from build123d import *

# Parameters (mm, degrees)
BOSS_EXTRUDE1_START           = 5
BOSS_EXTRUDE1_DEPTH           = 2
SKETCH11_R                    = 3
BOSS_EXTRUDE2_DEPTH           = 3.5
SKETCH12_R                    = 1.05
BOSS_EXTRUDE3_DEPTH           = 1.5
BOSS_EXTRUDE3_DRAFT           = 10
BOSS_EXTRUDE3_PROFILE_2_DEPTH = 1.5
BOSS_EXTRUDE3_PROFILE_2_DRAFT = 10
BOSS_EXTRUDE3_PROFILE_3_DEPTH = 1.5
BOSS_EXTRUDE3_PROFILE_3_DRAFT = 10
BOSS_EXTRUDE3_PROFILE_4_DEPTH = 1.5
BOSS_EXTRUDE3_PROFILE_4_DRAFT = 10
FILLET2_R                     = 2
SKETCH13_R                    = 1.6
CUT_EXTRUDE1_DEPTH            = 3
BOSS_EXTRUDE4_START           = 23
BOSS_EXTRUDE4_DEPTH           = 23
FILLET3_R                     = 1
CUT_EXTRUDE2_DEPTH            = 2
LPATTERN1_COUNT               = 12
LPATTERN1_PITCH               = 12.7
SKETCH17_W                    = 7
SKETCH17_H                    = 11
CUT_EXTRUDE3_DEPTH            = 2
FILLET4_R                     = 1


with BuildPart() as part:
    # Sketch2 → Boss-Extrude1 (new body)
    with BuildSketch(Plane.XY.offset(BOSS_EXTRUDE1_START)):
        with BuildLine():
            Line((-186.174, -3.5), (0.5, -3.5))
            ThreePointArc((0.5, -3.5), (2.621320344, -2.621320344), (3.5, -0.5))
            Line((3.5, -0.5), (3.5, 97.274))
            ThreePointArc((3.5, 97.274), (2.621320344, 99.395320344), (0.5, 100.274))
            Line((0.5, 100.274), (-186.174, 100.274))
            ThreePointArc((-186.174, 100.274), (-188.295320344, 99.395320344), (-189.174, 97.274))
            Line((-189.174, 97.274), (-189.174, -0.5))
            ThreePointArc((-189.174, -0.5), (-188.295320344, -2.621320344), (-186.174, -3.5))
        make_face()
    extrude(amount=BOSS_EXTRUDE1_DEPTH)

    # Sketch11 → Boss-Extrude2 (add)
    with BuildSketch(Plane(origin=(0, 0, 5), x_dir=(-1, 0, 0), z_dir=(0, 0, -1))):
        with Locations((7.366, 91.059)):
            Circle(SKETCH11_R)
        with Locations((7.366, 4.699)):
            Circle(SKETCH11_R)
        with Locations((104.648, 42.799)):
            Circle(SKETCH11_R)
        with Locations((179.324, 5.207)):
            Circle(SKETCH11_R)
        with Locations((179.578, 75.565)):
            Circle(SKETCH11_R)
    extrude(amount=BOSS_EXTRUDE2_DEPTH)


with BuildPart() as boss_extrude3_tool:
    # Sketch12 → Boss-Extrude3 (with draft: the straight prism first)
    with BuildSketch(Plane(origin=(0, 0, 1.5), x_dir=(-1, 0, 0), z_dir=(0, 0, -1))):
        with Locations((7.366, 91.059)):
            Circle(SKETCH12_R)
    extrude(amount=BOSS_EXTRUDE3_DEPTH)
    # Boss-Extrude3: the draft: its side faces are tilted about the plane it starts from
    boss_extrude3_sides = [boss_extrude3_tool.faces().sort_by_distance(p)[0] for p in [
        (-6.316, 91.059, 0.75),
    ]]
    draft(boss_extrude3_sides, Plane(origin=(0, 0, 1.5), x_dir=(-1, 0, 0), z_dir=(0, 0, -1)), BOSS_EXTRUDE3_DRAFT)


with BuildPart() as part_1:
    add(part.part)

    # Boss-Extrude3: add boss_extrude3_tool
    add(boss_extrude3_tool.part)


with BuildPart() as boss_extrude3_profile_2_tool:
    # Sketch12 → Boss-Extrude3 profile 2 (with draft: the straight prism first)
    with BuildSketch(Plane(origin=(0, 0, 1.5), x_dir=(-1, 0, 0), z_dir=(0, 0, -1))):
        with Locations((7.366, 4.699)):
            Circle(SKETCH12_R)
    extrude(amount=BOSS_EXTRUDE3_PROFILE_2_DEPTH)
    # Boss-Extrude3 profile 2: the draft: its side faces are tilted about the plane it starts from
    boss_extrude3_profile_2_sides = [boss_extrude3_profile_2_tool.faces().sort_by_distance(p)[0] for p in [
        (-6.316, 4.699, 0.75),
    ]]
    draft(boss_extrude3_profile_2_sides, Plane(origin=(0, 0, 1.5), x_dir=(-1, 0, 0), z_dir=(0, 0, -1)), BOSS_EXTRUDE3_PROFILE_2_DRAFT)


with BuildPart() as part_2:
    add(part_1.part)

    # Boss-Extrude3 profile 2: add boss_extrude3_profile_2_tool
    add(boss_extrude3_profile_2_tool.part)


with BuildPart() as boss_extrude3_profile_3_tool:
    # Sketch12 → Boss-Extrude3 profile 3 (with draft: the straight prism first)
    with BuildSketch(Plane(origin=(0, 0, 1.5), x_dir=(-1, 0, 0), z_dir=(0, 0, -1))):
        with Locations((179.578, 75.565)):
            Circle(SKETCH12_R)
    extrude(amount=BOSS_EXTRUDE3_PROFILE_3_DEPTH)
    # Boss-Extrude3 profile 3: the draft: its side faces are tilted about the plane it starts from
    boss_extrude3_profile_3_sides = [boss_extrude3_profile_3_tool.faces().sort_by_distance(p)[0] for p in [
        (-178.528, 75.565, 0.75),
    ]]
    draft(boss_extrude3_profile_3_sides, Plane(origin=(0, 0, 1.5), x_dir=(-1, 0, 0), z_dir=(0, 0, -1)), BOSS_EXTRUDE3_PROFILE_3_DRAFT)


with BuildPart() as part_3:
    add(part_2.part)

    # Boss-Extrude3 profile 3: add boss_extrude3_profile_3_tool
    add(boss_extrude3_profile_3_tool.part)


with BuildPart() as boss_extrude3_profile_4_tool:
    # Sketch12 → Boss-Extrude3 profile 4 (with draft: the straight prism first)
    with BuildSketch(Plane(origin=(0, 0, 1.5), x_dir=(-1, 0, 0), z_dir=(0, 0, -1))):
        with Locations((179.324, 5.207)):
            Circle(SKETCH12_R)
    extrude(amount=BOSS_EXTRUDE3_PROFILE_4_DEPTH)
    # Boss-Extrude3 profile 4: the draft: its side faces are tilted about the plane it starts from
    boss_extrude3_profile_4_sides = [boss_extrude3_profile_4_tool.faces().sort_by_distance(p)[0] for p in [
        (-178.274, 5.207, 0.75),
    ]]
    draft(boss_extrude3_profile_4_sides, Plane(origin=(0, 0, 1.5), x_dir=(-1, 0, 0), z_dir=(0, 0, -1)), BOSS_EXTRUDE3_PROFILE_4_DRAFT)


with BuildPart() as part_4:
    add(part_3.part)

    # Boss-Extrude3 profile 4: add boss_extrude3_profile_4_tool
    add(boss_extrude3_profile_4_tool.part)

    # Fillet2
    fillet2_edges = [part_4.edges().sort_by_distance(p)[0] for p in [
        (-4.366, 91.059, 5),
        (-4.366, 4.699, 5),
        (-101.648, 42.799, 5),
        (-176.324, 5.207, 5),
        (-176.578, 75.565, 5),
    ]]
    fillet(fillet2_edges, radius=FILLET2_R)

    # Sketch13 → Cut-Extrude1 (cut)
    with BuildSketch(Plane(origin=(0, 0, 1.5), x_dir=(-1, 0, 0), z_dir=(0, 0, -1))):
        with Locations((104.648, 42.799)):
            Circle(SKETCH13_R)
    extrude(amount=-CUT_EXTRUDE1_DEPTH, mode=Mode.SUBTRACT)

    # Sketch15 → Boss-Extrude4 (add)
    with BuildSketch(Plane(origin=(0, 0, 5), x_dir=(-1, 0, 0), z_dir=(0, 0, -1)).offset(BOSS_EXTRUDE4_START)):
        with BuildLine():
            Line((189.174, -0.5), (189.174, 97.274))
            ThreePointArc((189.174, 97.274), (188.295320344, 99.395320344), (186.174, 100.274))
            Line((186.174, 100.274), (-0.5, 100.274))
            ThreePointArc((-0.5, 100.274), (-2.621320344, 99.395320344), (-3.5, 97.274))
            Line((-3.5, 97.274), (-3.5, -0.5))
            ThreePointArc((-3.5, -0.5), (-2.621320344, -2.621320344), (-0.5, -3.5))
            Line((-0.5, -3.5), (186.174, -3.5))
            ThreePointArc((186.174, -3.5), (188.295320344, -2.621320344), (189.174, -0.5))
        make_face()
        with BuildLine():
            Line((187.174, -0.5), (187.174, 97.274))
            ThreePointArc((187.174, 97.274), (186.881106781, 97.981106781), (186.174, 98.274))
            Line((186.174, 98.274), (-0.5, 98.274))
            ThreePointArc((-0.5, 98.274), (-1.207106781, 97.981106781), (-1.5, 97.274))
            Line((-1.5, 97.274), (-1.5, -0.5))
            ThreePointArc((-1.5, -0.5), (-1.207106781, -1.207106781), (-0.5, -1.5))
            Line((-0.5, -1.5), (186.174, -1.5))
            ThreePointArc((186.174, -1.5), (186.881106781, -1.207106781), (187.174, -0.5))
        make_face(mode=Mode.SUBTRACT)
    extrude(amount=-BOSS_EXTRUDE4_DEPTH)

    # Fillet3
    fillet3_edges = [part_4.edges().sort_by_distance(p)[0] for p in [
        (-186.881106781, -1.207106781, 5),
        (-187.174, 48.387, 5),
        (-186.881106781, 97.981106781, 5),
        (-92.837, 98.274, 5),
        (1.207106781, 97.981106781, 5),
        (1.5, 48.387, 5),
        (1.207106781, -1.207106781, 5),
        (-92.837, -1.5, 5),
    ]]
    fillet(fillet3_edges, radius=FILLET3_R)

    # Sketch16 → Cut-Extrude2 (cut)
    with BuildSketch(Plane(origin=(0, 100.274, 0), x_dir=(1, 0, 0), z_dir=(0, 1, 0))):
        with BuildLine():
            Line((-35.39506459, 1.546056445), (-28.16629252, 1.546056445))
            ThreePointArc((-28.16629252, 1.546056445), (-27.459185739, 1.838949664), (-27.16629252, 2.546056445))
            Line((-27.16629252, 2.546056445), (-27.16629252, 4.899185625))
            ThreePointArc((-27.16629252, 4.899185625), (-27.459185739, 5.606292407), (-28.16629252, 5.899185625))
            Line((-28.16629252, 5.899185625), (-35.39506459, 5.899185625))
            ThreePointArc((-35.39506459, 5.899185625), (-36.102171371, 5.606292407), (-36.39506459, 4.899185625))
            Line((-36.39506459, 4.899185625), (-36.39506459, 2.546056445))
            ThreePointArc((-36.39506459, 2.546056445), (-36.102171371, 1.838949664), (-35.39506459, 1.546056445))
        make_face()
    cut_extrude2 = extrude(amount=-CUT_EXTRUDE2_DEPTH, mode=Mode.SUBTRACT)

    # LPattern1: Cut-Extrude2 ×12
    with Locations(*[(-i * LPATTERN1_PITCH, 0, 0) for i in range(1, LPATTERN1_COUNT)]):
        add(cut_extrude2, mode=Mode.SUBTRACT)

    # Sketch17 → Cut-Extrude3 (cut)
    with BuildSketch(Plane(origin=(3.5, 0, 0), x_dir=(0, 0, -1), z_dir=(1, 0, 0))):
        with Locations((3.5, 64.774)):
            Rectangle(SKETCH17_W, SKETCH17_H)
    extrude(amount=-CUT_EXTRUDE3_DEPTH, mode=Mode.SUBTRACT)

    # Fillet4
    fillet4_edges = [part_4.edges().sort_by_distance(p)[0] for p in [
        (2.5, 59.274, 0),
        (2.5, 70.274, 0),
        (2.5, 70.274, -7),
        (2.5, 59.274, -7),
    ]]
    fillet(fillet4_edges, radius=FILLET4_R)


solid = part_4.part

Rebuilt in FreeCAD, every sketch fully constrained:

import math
import FreeCAD as App
import Part
import Sketcher


def edges_at(feature, points):
    """Names of the edges that pass closest to the given points."""
    edges = feature.Shape.Edges
    near = lambda p: min(range(len(edges)), key=lambda i: edges[i].distToShape(Part.Vertex(*p))[0])
    return sorted({f"Edge{near(p) + 1}" for p in points})


def faces_at(feature, points):
    """Names of the faces that lie closest to the given points."""
    faces = feature.Shape.Faces
    near = lambda p: min(range(len(faces)), key=lambda i: faces[i].distToShape(Part.Vertex(*p))[0])
    return sorted({f"Face{near(p) + 1}" for p in points})

doc = App.newDocument("Part")
body = doc.addObject("PartDesign::Body", "Body")

# Sketch on XY plane
sketch1 = body.newObject("Sketcher::SketchObject", "Sketch")
sketch1.AttachmentSupport = (doc.getObject("XY_Plane"), [""])
sketch1.MapMode = "FlatFace"
sketch1.AttachmentOffset = App.Placement(App.Vector(0, 0, 5), App.Rotation())
sketch1.addGeometry(Part.LineSegment(App.Vector(-186.2, -3.5, 0), App.Vector(0.5, -3.5, 0)), False)
sketch1.addGeometry(Part.ArcOfCircle(Part.Circle(App.Vector(0.5, -0.5, 0), App.Vector(0, 0, 1), 3), math.radians(-90), math.radians(0)), False)
sketch1.addGeometry(Part.LineSegment(App.Vector(3.5, -0.5, 0), App.Vector(3.5, 97.3, 0)), False)
sketch1.addGeometry(Part.ArcOfCircle(Part.Circle(App.Vector(0.5, 97.3, 0), App.Vector(0, 0, 1), 3), math.radians(0), math.radians(90)), False)
sketch1.addGeometry(Part.LineSegment(App.Vector(0.5, 100.3, 0), App.Vector(-186.2, 100.3, 0)), False)
sketch1.addGeometry(Part.ArcOfCircle(Part.Circle(App.Vector(-186.2, 97.3, 0), App.Vector(0, 0, 1), 3), math.radians(90), math.radians(180)), False)
sketch1.addGeometry(Part.LineSegment(App.Vector(-189.2, 97.3, 0), App.Vector(-189.2, -0.5, 0)), False)
sketch1.addGeometry(Part.ArcOfCircle(Part.Circle(App.Vector(-186.2, -0.5, 0), App.Vector(0, 0, 1), 3), math.radians(180), math.radians(270)), False)
sketch1.addConstraint(Sketcher.Constraint("Tangent", 0, 2, 1, 1))
sketch1.addConstraint(Sketcher.Constraint("Tangent", 1, 2, 2, 1))
sketch1.addConstraint(Sketcher.Constraint("Tangent", 2, 2, 3, 1))
sketch1.addConstraint(Sketcher.Constraint("Tangent", 3, 2, 4, 1))
sketch1.addConstraint(Sketcher.Constraint("Tangent", 4, 2, 5, 1))
sketch1.addConstraint(Sketcher.Constraint("Tangent", 5, 2, 6, 1))
sketch1.addConstraint(Sketcher.Constraint("Tangent", 6, 2, 7, 1))
sketch1.addConstraint(Sketcher.Constraint("Tangent", 7, 2, 0, 1))
sketch1.addConstraint(Sketcher.Constraint("Horizontal", 0))
sketch1.addConstraint(Sketcher.Constraint("Vertical", 2))
sketch1.addConstraint(Sketcher.Constraint("Horizontal", 4))
sketch1.addConstraint(Sketcher.Constraint("Vertical", 6))
sketch1.addConstraint(Sketcher.Constraint("Equal", 1, 3))
sketch1.addConstraint(Sketcher.Constraint("Equal", 3, 5))
sketch1.addConstraint(Sketcher.Constraint("Equal", 5, 7))
sketch1.addConstraint(Sketcher.Constraint("Radius", 1, 3.0))
sketch1.addConstraint(Sketcher.Constraint("DistanceX", -1, 1, 1, 3, 0.5))
sketch1.addConstraint(Sketcher.Constraint("DistanceY", 1, 3, -1, 1, 0.5))
sketch1.addConstraint(Sketcher.Constraint("DistanceX", 0, 1, 0, 2, 186.674))
sketch1.addConstraint(Sketcher.Constraint("DistanceY", 2, 1, 2, 2, 97.774))
pad1 = body.newObject("PartDesign::Pad", "Pad")
pad1.Profile = sketch1
pad1.Length = 2

# Sketch on XY plane
sketch2 = body.newObject("Sketcher::SketchObject", "Sketch001")
sketch2.AttachmentSupport = (doc.getObject("XY_Plane"), [""])
sketch2.MapMode = "FlatFace"
sketch2.AttachmentOffset = App.Placement(App.Vector(0, 0, 5), App.Rotation())
sketch2.addGeometry(Part.Circle(App.Vector(-7.4, 91.1, 0), App.Vector(0, 0, 1), 3), False)
sketch2.addGeometry(Part.Circle(App.Vector(-7.4, 4.7, 0), App.Vector(0, 0, 1), 3), False)
sketch2.addGeometry(Part.Circle(App.Vector(-104.6, 42.8, 0), App.Vector(0, 0, 1), 3), False)
sketch2.addGeometry(Part.Circle(App.Vector(-179.3, 5.2, 0), App.Vector(0, 0, 1), 3), False)
sketch2.addGeometry(Part.Circle(App.Vector(-179.6, 75.6, 0), App.Vector(0, 0, 1), 3), False)
sketch2.addConstraint(Sketcher.Constraint("Equal", 0, 1))
sketch2.addConstraint(Sketcher.Constraint("Equal", 1, 2))
sketch2.addConstraint(Sketcher.Constraint("Equal", 2, 3))
sketch2.addConstraint(Sketcher.Constraint("Equal", 3, 4))
sketch2.addConstraint(Sketcher.Constraint("Vertical", 0, 3, 1, 3))
sketch2.addConstraint(Sketcher.Constraint("Diameter", 0, 6.0))
sketch2.addConstraint(Sketcher.Constraint("DistanceY", 1, 3, 2, 3, 38.1))
sketch2.addConstraint(Sketcher.Constraint("DistanceY", 1, 3, 0, 3, 86.36))
sketch2.addConstraint(Sketcher.Constraint("DistanceX", 4, 3, 2, 3, 74.93))
sketch2.addConstraint(Sketcher.Constraint("DistanceX", 0, 3, -1, 1, 7.366))
sketch2.addConstraint(Sketcher.Constraint("DistanceY", -1, 1, 0, 3, 91.059))
sketch2.addConstraint(Sketcher.Constraint("DistanceX", 2, 3, -1, 1, 104.648))
sketch2.addConstraint(Sketcher.Constraint("DistanceX", 3, 3, -1, 1, 179.324))
sketch2.addConstraint(Sketcher.Constraint("DistanceY", -1, 1, 3, 3, 5.207))
sketch2.addConstraint(Sketcher.Constraint("DistanceY", -1, 1, 4, 3, 75.565))
pad2 = body.newObject("PartDesign::Pad", "Pad001")
pad2.Profile = sketch2
pad2.Length = 3.5
pad2.Reversed = True
body2 = doc.addObject("PartDesign::Body", "Body001")

# Sketch on XY plane
sketch3 = body2.newObject("Sketcher::SketchObject", "Sketch002")
sketch3.AttachmentSupport = (doc.getObject("XY_Plane001"), [""])
sketch3.MapMode = "FlatFace"
sketch3.AttachmentOffset = App.Placement(App.Vector(0, 0, 1.5), App.Rotation())
sketch3.addGeometry(Part.Circle(App.Vector(-7.4, 91.1, 0), App.Vector(0, 0, 1), 1.1), False)
sketch3.addConstraint(Sketcher.Constraint("Diameter", 0, 2.1))
sketch3.addConstraint(Sketcher.Constraint("DistanceX", 0, 3, -1, 1, 7.366))
sketch3.addConstraint(Sketcher.Constraint("DistanceY", -1, 1, 0, 3, 91.059))
pad3 = body2.newObject("PartDesign::Pad", "Pad002")
pad3.Profile = sketch3
pad3.Length = 1.5
pad3.Reversed = True
doc.recompute()

datumplane = body2.newObject("PartDesign::Plane", "DatumPlane")
datumplane.AttachmentSupport = (doc.getObject("XY_Plane001"), [""])
datumplane.MapMode = "FlatFace"
datumplane.AttachmentOffset = App.Placement(App.Vector(0, 0, 1.5), App.Rotation())
draft = body2.newObject("PartDesign::Draft", "Draft")
draft.Base = (pad3, faces_at(pad3, [(-6.316, 91.059, 0.75)]))
draft.NeutralPlane = (datumplane, [""])
draft.Angle = 10
draft.Reversed = True
doc.recompute()

boolean = body.newObject("PartDesign::Boolean", "Boolean")
boolean.Type = "Fuse"
boolean.addObjects([body2])
body3 = doc.addObject("PartDesign::Body", "Body002")

# Sketch on XY plane
sketch4 = body3.newObject("Sketcher::SketchObject", "Sketch003")
sketch4.AttachmentSupport = (doc.getObject("XY_Plane002"), [""])
sketch4.MapMode = "FlatFace"
sketch4.AttachmentOffset = App.Placement(App.Vector(0, 0, 1.5), App.Rotation())
sketch4.addGeometry(Part.Circle(App.Vector(-7.4, 4.7, 0), App.Vector(0, 0, 1), 1.1), False)
sketch4.addConstraint(Sketcher.Constraint("Diameter", 0, 2.1))
sketch4.addConstraint(Sketcher.Constraint("DistanceX", 0, 3, -1, 1, 7.366))
sketch4.addConstraint(Sketcher.Constraint("DistanceY", -1, 1, 0, 3, 4.699))
pad4 = body3.newObject("PartDesign::Pad", "Pad003")
pad4.Profile = sketch4
pad4.Length = 1.5
pad4.Reversed = True
doc.recompute()

datumplane2 = body3.newObject("PartDesign::Plane", "DatumPlane001")
datumplane2.AttachmentSupport = (doc.getObject("XY_Plane002"), [""])
datumplane2.MapMode = "FlatFace"
datumplane2.AttachmentOffset = App.Placement(App.Vector(0, 0, 1.5), App.Rotation())
draft2 = body3.newObject("PartDesign::Draft", "Draft001")
draft2.Base = (pad4, faces_at(pad4, [(-6.316, 4.699, 0.75)]))
draft2.NeutralPlane = (datumplane2, [""])
draft2.Angle = 10
draft2.Reversed = True
doc.recompute()

boolean2 = body.newObject("PartDesign::Boolean", "Boolean001")
boolean2.Type = "Fuse"
boolean2.addObjects([body3])
body4 = doc.addObject("PartDesign::Body", "Body003")

# Sketch on XY plane
sketch5 = body4.newObject("Sketcher::SketchObject", "Sketch004")
sketch5.AttachmentSupport = (doc.getObject("XY_Plane003"), [""])
sketch5.MapMode = "FlatFace"
sketch5.AttachmentOffset = App.Placement(App.Vector(0, 0, 1.5), App.Rotation())
sketch5.addGeometry(Part.Circle(App.Vector(-179.6, 75.6, 0), App.Vector(0, 0, 1), 1.1), False)
sketch5.addConstraint(Sketcher.Constraint("Diameter", 0, 2.1))
sketch5.addConstraint(Sketcher.Constraint("DistanceX", 0, 3, -1, 1, 179.578))
sketch5.addConstraint(Sketcher.Constraint("DistanceY", -1, 1, 0, 3, 75.565))
pad5 = body4.newObject("PartDesign::Pad", "Pad004")
pad5.Profile = sketch5
pad5.Length = 1.5
pad5.Reversed = True
doc.recompute()

datumplane3 = body4.newObject("PartDesign::Plane", "DatumPlane002")
datumplane3.AttachmentSupport = (doc.getObject("XY_Plane003"), [""])
datumplane3.MapMode = "FlatFace"
datumplane3.AttachmentOffset = App.Placement(App.Vector(0, 0, 1.5), App.Rotation())
draft3 = body4.newObject("PartDesign::Draft", "Draft002")
draft3.Base = (pad5, faces_at(pad5, [(-178.528, 75.565, 0.75)]))
draft3.NeutralPlane = (datumplane3, [""])
draft3.Angle = 10
draft3.Reversed = True
doc.recompute()

boolean3 = body.newObject("PartDesign::Boolean", "Boolean002")
boolean3.Type = "Fuse"
boolean3.addObjects([body4])
body5 = doc.addObject("PartDesign::Body", "Body004")

# Sketch on XY plane
sketch6 = body5.newObject("Sketcher::SketchObject", "Sketch005")
sketch6.AttachmentSupport = (doc.getObject("XY_Plane004"), [""])
sketch6.MapMode = "FlatFace"
sketch6.AttachmentOffset = App.Placement(App.Vector(0, 0, 1.5), App.Rotation())
sketch6.addGeometry(Part.Circle(App.Vector(-179.3, 5.2, 0), App.Vector(0, 0, 1), 1.1), False)
sketch6.addConstraint(Sketcher.Constraint("Diameter", 0, 2.1))
sketch6.addConstraint(Sketcher.Constraint("DistanceX", 0, 3, -1, 1, 179.324))
sketch6.addConstraint(Sketcher.Constraint("DistanceY", -1, 1, 0, 3, 5.207))
pad6 = body5.newObject("PartDesign::Pad", "Pad005")
pad6.Profile = sketch6
pad6.Length = 1.5
pad6.Reversed = True
doc.recompute()

datumplane4 = body5.newObject("PartDesign::Plane", "DatumPlane003")
datumplane4.AttachmentSupport = (doc.getObject("XY_Plane004"), [""])
datumplane4.MapMode = "FlatFace"
datumplane4.AttachmentOffset = App.Placement(App.Vector(0, 0, 1.5), App.Rotation())
draft4 = body5.newObject("PartDesign::Draft", "Draft003")
draft4.Base = (pad6, faces_at(pad6, [(-178.274, 5.207, 0.75)]))
draft4.NeutralPlane = (datumplane4, [""])
draft4.Angle = 10
draft4.Reversed = True
doc.recompute()

boolean4 = body.newObject("PartDesign::Boolean", "Boolean003")
boolean4.Type = "Fuse"
boolean4.addObjects([body5])
doc.recompute()

fillet = body.newObject("PartDesign::Fillet", "Fillet")
fillet.Base = (boolean4, edges_at(boolean4, [
    (-4.366, 91.059, 5),
    (-4.366, 4.699, 5),
    (-101.648, 42.799, 5),
    (-176.324, 5.207, 5),
    (-176.578, 75.565, 5),
]))
fillet.Radius = 2

# Sketch on XY plane
sketch7 = body.newObject("Sketcher::SketchObject", "Sketch006")
sketch7.AttachmentSupport = (doc.getObject("XY_Plane"), [""])
sketch7.MapMode = "FlatFace"
sketch7.AttachmentOffset = App.Placement(App.Vector(0, 0, 1.5), App.Rotation())
sketch7.addGeometry(Part.Circle(App.Vector(-104.6, 42.8, 0), App.Vector(0, 0, 1), 1.6), False)
sketch7.addConstraint(Sketcher.Constraint("Diameter", 0, 3.2))
sketch7.addConstraint(Sketcher.Constraint("DistanceX", 0, 3, -1, 1, 104.648))
sketch7.addConstraint(Sketcher.Constraint("DistanceY", -1, 1, 0, 3, 42.799))
pocket1 = body.newObject("PartDesign::Pocket", "Pocket")
pocket1.Profile = sketch7
pocket1.Length = 3
pocket1.Reversed = True

# Sketch on XY plane
sketch8 = body.newObject("Sketcher::SketchObject", "Sketch007")
sketch8.AttachmentSupport = (doc.getObject("XY_Plane"), [""])
sketch8.MapMode = "FlatFace"
sketch8.AttachmentOffset = App.Placement(App.Vector(0, 0, -18), App.Rotation())
sketch8.addGeometry(Part.LineSegment(App.Vector(-189.2, -0.5, 0), App.Vector(-189.2, 97.3, 0)), False)
sketch8.addGeometry(Part.ArcOfCircle(Part.Circle(App.Vector(-186.2, 97.3, 0), App.Vector(0, 0, 1), 3), math.radians(90), math.radians(180)), False)
sketch8.addGeometry(Part.LineSegment(App.Vector(-186.2, 100.3, 0), App.Vector(0.5, 100.3, 0)), False)
sketch8.addGeometry(Part.ArcOfCircle(Part.Circle(App.Vector(0.5, 97.3, 0), App.Vector(0, 0, 1), 3), math.radians(0), math.radians(90)), False)
sketch8.addGeometry(Part.LineSegment(App.Vector(3.5, 97.3, 0), App.Vector(3.5, -0.5, 0)), False)
sketch8.addGeometry(Part.ArcOfCircle(Part.Circle(App.Vector(0.5, -0.5, 0), App.Vector(0, 0, 1), 3), math.radians(-90), math.radians(0)), False)
sketch8.addGeometry(Part.LineSegment(App.Vector(0.5, -3.5, 0), App.Vector(-186.2, -3.5, 0)), False)
sketch8.addGeometry(Part.ArcOfCircle(Part.Circle(App.Vector(-186.2, -0.5, 0), App.Vector(0, 0, 1), 3), math.radians(180), math.radians(270)), False)
sketch8.addGeometry(Part.LineSegment(App.Vector(-187.2, 97.3, 0), App.Vector(-187.2, -0.5, 0)), False)
sketch8.addGeometry(Part.ArcOfCircle(Part.Circle(App.Vector(-186.2, -0.5, 0), App.Vector(0, 0, 1), 1), math.radians(-180), math.radians(-90)), False)
sketch8.addGeometry(Part.LineSegment(App.Vector(-186.2, -1.5, 0), App.Vector(0.5, -1.5, 0)), False)
sketch8.addGeometry(Part.ArcOfCircle(Part.Circle(App.Vector(0.5, -0.5, 0), App.Vector(0, 0, 1), 1), math.radians(-90), math.radians(0)), False)
sketch8.addGeometry(Part.LineSegment(App.Vector(1.5, -0.5, 0), App.Vector(1.5, 97.3, 0)), False)
sketch8.addGeometry(Part.ArcOfCircle(Part.Circle(App.Vector(0.5, 97.3, 0), App.Vector(0, 0, 1), 1), math.radians(0), math.radians(90)), False)
sketch8.addGeometry(Part.LineSegment(App.Vector(0.5, 98.3, 0), App.Vector(-186.2, 98.3, 0)), False)
sketch8.addGeometry(Part.ArcOfCircle(Part.Circle(App.Vector(-186.2, 97.3, 0), App.Vector(0, 0, 1), 1), math.radians(90), math.radians(180)), False)
sketch8.addConstraint(Sketcher.Constraint("Tangent", 0, 2, 1, 2))
sketch8.addConstraint(Sketcher.Constraint("Tangent", 1, 1, 2, 1))
sketch8.addConstraint(Sketcher.Constraint("Tangent", 2, 2, 3, 2))
sketch8.addConstraint(Sketcher.Constraint("Tangent", 3, 1, 4, 1))
sketch8.addConstraint(Sketcher.Constraint("Tangent", 4, 2, 5, 2))
sketch8.addConstraint(Sketcher.Constraint("Tangent", 5, 1, 6, 1))
sketch8.addConstraint(Sketcher.Constraint("Tangent", 6, 2, 7, 2))
sketch8.addConstraint(Sketcher.Constraint("Tangent", 7, 1, 0, 1))
sketch8.addConstraint(Sketcher.Constraint("Tangent", 8, 2, 9, 1))
sketch8.addConstraint(Sketcher.Constraint("Tangent", 9, 2, 10, 1))
sketch8.addConstraint(Sketcher.Constraint("Tangent", 10, 2, 11, 1))
sketch8.addConstraint(Sketcher.Constraint("Tangent", 11, 2, 12, 1))
sketch8.addConstraint(Sketcher.Constraint("Tangent", 12, 2, 13, 1))
sketch8.addConstraint(Sketcher.Constraint("Tangent", 13, 2, 14, 1))
sketch8.addConstraint(Sketcher.Constraint("Tangent", 14, 2, 15, 1))
sketch8.addConstraint(Sketcher.Constraint("Tangent", 15, 2, 8, 1))
sketch8.addConstraint(Sketcher.Constraint("Vertical", 0))
sketch8.addConstraint(Sketcher.Constraint("Horizontal", 2))
sketch8.addConstraint(Sketcher.Constraint("Vertical", 4))
sketch8.addConstraint(Sketcher.Constraint("Horizontal", 6))
sketch8.addConstraint(Sketcher.Constraint("Vertical", 8))
sketch8.addConstraint(Sketcher.Constraint("Horizontal", 10))
sketch8.addConstraint(Sketcher.Constraint("Vertical", 12))
sketch8.addConstraint(Sketcher.Constraint("Horizontal", 14))
sketch8.addConstraint(Sketcher.Constraint("Coincident", 9, 3, 7, 3))
sketch8.addConstraint(Sketcher.Constraint("Coincident", 11, 3, 5, 3))
sketch8.addConstraint(Sketcher.Constraint("Coincident", 13, 3, 3, 3))
sketch8.addConstraint(Sketcher.Constraint("Equal", 1, 3))
sketch8.addConstraint(Sketcher.Constraint("Equal", 3, 5))
sketch8.addConstraint(Sketcher.Constraint("Equal", 5, 7))
sketch8.addConstraint(Sketcher.Constraint("Equal", 13, 15))
sketch8.addConstraint(Sketcher.Constraint("Radius", 1, 3.0))
sketch8.addConstraint(Sketcher.Constraint("Radius", 9, 1.0))
sketch8.addConstraint(Sketcher.Constraint("DistanceX", -1, 1, 3, 3, 0.5))
sketch8.addConstraint(Sketcher.Constraint("DistanceY", 5, 3, -1, 1, 0.5))
sketch8.addConstraint(Sketcher.Constraint("DistanceX", 2, 1, 2, 2, 186.674))
sketch8.addConstraint(Sketcher.Constraint("DistanceY", 0, 1, 0, 2, 97.774))
pad7 = body.newObject("PartDesign::Pad", "Pad006")
pad7.Profile = sketch8
pad7.Length = 23
doc.recompute()

fillet2 = body.newObject("PartDesign::Fillet", "Fillet001")
fillet2.Base = (pad7, edges_at(pad7, [
    (-186.881, -1.207, 5),
    (-187.174, 48.387, 5),
    (-186.881, 97.981, 5),
    (-92.837, 98.274, 5),
    (1.207, 97.981, 5),
    (1.5, 48.387, 5),
    (1.207, -1.207, 5),
    (-92.837, -1.5, 5),
]))
fillet2.Radius = 1

# Sketch on XZ plane
sketch9 = body.newObject("Sketcher::SketchObject", "Sketch008")
sketch9.AttachmentSupport = (doc.getObject("XZ_Plane"), [""])
sketch9.MapMode = "FlatFace"
sketch9.AttachmentOffset = App.Placement(App.Vector(0, 0, -100.274), App.Rotation())
sketch9.addGeometry(Part.LineSegment(App.Vector(-35.4, -1.5, 0), App.Vector(-28.2, -1.5, 0)), False)
sketch9.addGeometry(Part.ArcOfCircle(Part.Circle(App.Vector(-28.2, -2.5, 0), App.Vector(0, 0, 1), 1), math.radians(0), math.radians(90)), False)
sketch9.addGeometry(Part.LineSegment(App.Vector(-27.2, -2.5, 0), App.Vector(-27.2, -4.9, 0)), False)
sketch9.addGeometry(Part.ArcOfCircle(Part.Circle(App.Vector(-28.2, -4.9, 0), App.Vector(0, 0, 1), 1), math.radians(-90), math.radians(0)), False)
sketch9.addGeometry(Part.LineSegment(App.Vector(-28.2, -5.9, 0), App.Vector(-35.4, -5.9, 0)), False)
sketch9.addGeometry(Part.ArcOfCircle(Part.Circle(App.Vector(-35.4, -4.9, 0), App.Vector(0, 0, 1), 1), math.radians(180), math.radians(270)), False)
sketch9.addGeometry(Part.LineSegment(App.Vector(-36.4, -4.9, 0), App.Vector(-36.4, -2.5, 0)), False)
sketch9.addGeometry(Part.ArcOfCircle(Part.Circle(App.Vector(-35.4, -2.5, 0), App.Vector(0, 0, 1), 1), math.radians(90), math.radians(180)), False)
sketch9.addConstraint(Sketcher.Constraint("Tangent", 0, 2, 1, 2))
sketch9.addConstraint(Sketcher.Constraint("Tangent", 1, 1, 2, 1))
sketch9.addConstraint(Sketcher.Constraint("Tangent", 2, 2, 3, 2))
sketch9.addConstraint(Sketcher.Constraint("Tangent", 3, 1, 4, 1))
sketch9.addConstraint(Sketcher.Constraint("Tangent", 4, 2, 5, 2))
sketch9.addConstraint(Sketcher.Constraint("Tangent", 5, 1, 6, 1))
sketch9.addConstraint(Sketcher.Constraint("Tangent", 6, 2, 7, 2))
sketch9.addConstraint(Sketcher.Constraint("Tangent", 7, 1, 0, 1))
sketch9.addConstraint(Sketcher.Constraint("Horizontal", 0))
sketch9.addConstraint(Sketcher.Constraint("Vertical", 2))
sketch9.addConstraint(Sketcher.Constraint("Horizontal", 4))
sketch9.addConstraint(Sketcher.Constraint("Vertical", 6))
sketch9.addConstraint(Sketcher.Constraint("Equal", 1, 3))
sketch9.addConstraint(Sketcher.Constraint("Equal", 3, 5))
sketch9.addConstraint(Sketcher.Constraint("Equal", 5, 7))
sketch9.addConstraint(Sketcher.Constraint("Radius", 1, 1.0))
sketch9.addConstraint(Sketcher.Constraint("DistanceY", 2, 2, 2, 1, 2.353129))
sketch9.addConstraint(Sketcher.Constraint("DistanceX", 0, 1, 0, 2, 7.228772))
sketch9.addConstraint(Sketcher.Constraint("DistanceX", 1, 3, -1, 1, 28.166293))
sketch9.addConstraint(Sketcher.Constraint("DistanceY", 1, 3, -1, 1, 2.546056))
pocket2 = body.newObject("PartDesign::Pocket", "Pocket001")
pocket2.Profile = sketch9
pocket2.Length = 2
pocket2.Reversed = True
doc.recompute()

linearpattern = body.newObject("PartDesign::LinearPattern", "LinearPattern")
linearpattern.Originals = [pocket2]
linearpattern.Direction = (doc.getObject("X_Axis"), [""])
linearpattern.Mode = "offset"
linearpattern.Offset = 12.7
linearpattern.Occurrences = 12
linearpattern.Reversed = True
body.Tip = linearpattern

# Sketch on YZ plane
sketch10 = body.newObject("Sketcher::SketchObject", "Sketch009")
sketch10.AttachmentSupport = (doc.getObject("YZ_Plane"), [""])
sketch10.MapMode = "FlatFace"
sketch10.AttachmentOffset = App.Placement(App.Vector(0, 0, 3.5), App.Rotation())
sketch10.addGeometry(Part.LineSegment(App.Vector(70, 0, 0), App.Vector(59, 0, 0)), False)
sketch10.addGeometry(Part.LineSegment(App.Vector(59, 0, 0), App.Vector(59, -7, 0)), False)
sketch10.addGeometry(Part.LineSegment(App.Vector(59, -7, 0), App.Vector(70, -7, 0)), False)
sketch10.addGeometry(Part.LineSegment(App.Vector(70, -7, 0), App.Vector(70, 0, 0)), False)
sketch10.addConstraint(Sketcher.Constraint("Coincident", 0, 2, 1, 1))
sketch10.addConstraint(Sketcher.Constraint("Coincident", 1, 2, 2, 1))
sketch10.addConstraint(Sketcher.Constraint("Coincident", 2, 2, 3, 1))
sketch10.addConstraint(Sketcher.Constraint("Coincident", 3, 2, 0, 1))
sketch10.addConstraint(Sketcher.Constraint("Horizontal", 0))
sketch10.addConstraint(Sketcher.Constraint("Vertical", 1))
sketch10.addConstraint(Sketcher.Constraint("Horizontal", 2))
sketch10.addConstraint(Sketcher.Constraint("Vertical", 3))
sketch10.addConstraint(Sketcher.Constraint("PointOnObject", 0, 2, -1))
sketch10.addConstraint(Sketcher.Constraint("DistanceX", 0, 2, 0, 1, 11.0))
sketch10.addConstraint(Sketcher.Constraint("DistanceY", 1, 2, 1, 1, 7.0))
sketch10.addConstraint(Sketcher.Constraint("DistanceX", -1, 1, 0, 2, 59.274))
pocket3 = body.newObject("PartDesign::Pocket", "Pocket002")
pocket3.Profile = sketch10
pocket3.Length = 2
doc.recompute()

fillet3 = body.newObject("PartDesign::Fillet", "Fillet002")
fillet3.Base = (pocket3, edges_at(pocket3, [
    (2.5, 59.274, 0),
    (2.5, 70.274, 0),
    (2.5, 70.274, -7),
    (2.5, 59.274, -7),
]))
fillet3.Radius = 1

doc.recompute()
